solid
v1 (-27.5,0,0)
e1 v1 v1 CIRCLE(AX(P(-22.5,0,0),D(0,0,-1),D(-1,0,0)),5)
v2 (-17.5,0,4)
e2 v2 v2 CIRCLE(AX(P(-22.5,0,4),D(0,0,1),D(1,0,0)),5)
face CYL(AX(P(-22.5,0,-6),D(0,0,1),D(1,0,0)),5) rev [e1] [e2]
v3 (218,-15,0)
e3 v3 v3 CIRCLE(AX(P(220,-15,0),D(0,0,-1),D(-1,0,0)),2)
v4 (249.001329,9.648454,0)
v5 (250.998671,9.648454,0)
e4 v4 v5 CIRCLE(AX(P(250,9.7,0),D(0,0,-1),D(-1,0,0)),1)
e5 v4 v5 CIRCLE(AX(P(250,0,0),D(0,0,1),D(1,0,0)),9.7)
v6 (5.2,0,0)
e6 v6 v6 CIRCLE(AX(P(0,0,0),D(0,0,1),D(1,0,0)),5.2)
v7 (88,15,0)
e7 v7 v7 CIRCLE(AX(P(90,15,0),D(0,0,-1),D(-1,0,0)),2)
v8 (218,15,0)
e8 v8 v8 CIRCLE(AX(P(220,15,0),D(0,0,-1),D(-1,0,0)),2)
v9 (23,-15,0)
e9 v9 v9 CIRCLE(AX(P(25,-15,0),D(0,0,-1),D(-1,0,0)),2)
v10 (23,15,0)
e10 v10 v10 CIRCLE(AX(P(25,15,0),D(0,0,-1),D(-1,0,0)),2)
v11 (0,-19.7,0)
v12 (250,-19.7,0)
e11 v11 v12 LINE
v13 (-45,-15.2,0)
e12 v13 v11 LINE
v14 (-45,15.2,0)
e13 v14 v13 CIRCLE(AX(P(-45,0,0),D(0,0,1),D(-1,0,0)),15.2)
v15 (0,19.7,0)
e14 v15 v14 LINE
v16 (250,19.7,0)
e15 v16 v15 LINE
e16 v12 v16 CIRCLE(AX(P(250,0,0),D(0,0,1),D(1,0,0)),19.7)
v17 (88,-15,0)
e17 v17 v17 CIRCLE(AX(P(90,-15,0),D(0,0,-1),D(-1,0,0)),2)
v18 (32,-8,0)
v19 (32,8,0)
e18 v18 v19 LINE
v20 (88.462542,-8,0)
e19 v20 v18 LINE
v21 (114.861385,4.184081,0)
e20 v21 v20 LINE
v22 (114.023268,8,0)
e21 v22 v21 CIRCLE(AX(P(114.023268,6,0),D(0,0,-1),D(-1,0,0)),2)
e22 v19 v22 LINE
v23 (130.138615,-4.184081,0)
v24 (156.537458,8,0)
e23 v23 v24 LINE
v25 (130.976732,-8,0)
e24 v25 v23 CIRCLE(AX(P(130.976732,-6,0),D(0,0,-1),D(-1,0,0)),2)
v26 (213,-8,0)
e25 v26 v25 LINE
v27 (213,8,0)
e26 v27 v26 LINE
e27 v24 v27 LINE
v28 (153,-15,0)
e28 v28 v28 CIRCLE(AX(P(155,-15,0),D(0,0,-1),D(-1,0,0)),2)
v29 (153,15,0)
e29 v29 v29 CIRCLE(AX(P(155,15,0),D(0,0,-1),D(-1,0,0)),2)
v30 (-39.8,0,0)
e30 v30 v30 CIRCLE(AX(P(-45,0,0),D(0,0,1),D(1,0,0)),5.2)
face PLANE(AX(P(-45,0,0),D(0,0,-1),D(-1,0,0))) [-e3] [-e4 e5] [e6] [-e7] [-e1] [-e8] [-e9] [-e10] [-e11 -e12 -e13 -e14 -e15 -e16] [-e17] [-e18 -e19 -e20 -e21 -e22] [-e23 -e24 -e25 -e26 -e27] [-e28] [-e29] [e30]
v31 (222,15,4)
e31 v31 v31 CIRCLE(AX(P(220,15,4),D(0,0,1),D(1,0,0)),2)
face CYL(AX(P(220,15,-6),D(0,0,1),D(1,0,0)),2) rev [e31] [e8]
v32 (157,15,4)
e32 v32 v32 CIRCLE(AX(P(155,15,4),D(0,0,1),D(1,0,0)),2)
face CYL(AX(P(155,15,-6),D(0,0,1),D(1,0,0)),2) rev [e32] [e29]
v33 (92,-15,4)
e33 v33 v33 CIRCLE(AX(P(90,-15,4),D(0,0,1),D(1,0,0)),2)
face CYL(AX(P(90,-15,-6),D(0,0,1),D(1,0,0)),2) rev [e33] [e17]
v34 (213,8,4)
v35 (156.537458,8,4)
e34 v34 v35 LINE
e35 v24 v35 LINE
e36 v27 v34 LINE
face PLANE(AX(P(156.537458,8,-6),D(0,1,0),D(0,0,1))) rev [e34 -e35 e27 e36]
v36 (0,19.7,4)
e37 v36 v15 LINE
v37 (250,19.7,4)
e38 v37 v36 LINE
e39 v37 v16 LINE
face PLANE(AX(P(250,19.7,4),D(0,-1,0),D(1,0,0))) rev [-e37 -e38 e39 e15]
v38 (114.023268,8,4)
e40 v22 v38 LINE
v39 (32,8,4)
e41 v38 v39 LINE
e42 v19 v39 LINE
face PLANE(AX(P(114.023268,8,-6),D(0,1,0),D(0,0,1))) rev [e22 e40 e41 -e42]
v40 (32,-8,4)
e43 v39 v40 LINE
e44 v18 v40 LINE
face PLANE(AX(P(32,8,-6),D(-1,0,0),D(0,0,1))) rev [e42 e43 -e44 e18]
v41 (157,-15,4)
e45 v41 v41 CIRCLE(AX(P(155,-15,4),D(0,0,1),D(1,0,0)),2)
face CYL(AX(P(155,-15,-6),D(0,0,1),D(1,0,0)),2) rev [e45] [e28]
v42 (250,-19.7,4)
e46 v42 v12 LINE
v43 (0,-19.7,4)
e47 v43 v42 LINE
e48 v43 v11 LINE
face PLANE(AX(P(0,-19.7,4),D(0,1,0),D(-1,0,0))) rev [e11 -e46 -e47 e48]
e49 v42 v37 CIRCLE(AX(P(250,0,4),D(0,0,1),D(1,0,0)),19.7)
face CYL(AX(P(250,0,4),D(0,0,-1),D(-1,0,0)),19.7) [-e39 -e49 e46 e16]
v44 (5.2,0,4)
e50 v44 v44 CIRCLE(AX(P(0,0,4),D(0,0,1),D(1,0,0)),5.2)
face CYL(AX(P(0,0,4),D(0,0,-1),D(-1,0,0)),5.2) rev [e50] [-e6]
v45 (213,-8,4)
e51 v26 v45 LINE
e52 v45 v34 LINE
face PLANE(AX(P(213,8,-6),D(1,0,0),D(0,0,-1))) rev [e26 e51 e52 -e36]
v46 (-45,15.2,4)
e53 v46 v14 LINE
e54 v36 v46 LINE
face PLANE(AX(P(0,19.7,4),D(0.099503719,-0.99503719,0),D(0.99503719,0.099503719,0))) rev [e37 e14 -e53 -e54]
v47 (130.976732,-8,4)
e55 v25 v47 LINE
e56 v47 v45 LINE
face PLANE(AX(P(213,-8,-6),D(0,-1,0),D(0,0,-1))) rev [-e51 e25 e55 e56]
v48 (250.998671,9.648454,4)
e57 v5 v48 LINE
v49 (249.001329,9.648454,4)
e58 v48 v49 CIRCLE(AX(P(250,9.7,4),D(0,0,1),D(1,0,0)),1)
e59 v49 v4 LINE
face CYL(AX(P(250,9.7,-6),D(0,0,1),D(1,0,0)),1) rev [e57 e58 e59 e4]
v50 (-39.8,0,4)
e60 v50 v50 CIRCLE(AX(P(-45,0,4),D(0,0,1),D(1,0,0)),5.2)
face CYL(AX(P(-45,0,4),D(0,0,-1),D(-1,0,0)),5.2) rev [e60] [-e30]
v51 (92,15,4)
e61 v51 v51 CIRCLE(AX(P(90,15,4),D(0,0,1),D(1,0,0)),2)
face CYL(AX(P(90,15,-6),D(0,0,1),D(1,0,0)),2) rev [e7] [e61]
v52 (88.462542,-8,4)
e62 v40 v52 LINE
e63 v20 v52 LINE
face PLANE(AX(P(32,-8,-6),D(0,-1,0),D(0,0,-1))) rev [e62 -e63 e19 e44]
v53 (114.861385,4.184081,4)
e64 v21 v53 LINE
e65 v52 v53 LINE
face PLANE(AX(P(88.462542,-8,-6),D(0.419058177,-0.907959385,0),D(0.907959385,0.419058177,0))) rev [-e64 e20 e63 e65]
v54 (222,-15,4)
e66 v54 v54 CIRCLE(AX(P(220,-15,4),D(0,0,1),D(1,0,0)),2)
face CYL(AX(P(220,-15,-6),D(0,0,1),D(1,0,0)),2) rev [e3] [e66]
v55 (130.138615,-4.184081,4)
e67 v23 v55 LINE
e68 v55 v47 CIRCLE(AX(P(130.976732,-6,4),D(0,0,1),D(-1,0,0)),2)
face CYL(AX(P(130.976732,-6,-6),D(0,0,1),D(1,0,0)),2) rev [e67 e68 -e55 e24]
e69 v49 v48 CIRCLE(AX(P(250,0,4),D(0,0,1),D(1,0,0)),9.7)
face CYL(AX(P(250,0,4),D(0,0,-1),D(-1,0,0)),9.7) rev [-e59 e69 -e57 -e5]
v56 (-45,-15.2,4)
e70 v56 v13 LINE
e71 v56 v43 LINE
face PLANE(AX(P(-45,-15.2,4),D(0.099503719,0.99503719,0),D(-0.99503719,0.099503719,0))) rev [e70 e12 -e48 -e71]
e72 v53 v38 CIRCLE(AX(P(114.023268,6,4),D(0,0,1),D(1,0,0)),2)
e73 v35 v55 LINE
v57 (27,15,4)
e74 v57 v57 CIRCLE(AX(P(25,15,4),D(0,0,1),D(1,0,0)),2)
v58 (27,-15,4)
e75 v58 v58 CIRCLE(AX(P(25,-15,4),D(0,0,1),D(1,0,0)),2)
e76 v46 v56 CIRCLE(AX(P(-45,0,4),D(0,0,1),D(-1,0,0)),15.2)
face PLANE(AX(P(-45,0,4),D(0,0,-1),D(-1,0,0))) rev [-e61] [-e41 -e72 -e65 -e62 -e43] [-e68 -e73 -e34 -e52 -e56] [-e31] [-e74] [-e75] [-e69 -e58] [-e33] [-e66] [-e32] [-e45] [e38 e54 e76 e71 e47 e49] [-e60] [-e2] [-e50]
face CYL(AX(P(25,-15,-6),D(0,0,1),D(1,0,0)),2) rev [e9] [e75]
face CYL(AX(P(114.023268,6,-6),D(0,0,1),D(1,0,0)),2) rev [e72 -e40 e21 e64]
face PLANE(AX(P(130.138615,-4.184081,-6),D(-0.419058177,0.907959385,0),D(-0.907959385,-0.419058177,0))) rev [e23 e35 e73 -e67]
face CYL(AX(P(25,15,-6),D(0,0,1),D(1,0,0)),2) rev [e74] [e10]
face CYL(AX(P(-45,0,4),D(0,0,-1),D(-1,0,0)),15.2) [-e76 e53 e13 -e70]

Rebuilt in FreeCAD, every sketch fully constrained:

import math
import FreeCAD as App
import Part
import Sketcher

V = App.Vector

doc = App.newDocument("Part")
params = doc.addObject("Spreadsheet::Sheet", "Params")
for row, (alias, value) in enumerate([
    ("sketch1_diameter", "10.4 mm"),
    ("sketch1_diameter2", "19.4 mm"),
    ("sketch1_radius", "15.2 mm"),
    ("sketch1_radius2", "19.7 mm"),
    ("sketch1_width", "250 mm"),
    ("pad1_length", "4 mm"),
    ("sketch2_diameter", "4 mm"),
    ("pocket1_length", "10 mm"),
    ("sketch3_diameter", "10 mm"),
    ("sketch3_radius", "2 mm"),
    ("sketch3_height", "16 mm"),
    ("pocket2_length", "10 mm"),
    ("sketch4_diameter", "2 mm"),
    ("pocket3_length", "10 mm"),
], start=1):
    params.set(f"A{row}", alias)
    params.set(f"B{row}", "=" + value)
    params.setAlias(f"B{row}", alias)

body = doc.addObject("PartDesign::Body", "Body")

sketch1 = body.newObject("Sketcher::SketchObject", "Sketch")
sketch1.AttachmentSupport = (doc.getObject("XY_Plane"), [""])
sketch1.MapMode = "FlatFace"
sketch1.addGeometry(Part.LineSegment(V(250, 20, 0), V(0, 20, 0)), False)
sketch1.addGeometry(Part.LineSegment(V(0, 20, 0), V(-45, 15, 0)), False)
sketch1.addGeometry(Part.ArcOfCircle(Part.Circle(V(-45, 0, 0), V(0, 0, 1), 15), math.radians(90), math.radians(270)), False)
sketch1.addGeometry(Part.LineSegment(V(-45, -15, 0), V(0, -20, 0)), False)
sketch1.addGeometry(Part.LineSegment(V(0, -20, 0), V(250, -20, 0)), False)
sketch1.addGeometry(Part.ArcOfCircle(Part.Circle(V(250, 0, 0), V(0, 0, 1), 20), math.radians(-90), math.radians(90)), False)
sketch1.addGeometry(Part.Circle(V(-45, 0, 0), V(0, 0, 1), 5), False)
sketch1.addGeometry(Part.Circle(V(0, 0, 0), V(0, 0, 1), 5), False)
sketch1.addGeometry(Part.Circle(V(250, 0, 0), V(0, 0, 1), 10), False)
sketch1.addConstraint(Sketcher.Constraint("Coincident", 0, 2, 1, 1))
sketch1.addConstraint(Sketcher.Constraint("Coincident", 1, 2, 2, 1))
sketch1.addConstraint(Sketcher.Constraint("Coincident", 2, 2, 3, 1))
sketch1.addConstraint(Sketcher.Constraint("Coincident", 3, 2, 4, 1))
sketch1.addConstraint(Sketcher.Constraint("Tangent", 4, 2, 5, 1))
sketch1.addConstraint(Sketcher.Constraint("Tangent", 5, 2, 0, 1))
sketch1.addConstraint(Sketcher.Constraint("Horizontal", 0))
sketch1.addConstraint(Sketcher.Constraint("Horizontal", 4))
sketch1.addConstraint(Sketcher.Constraint("Coincident", 7, 3, -1, 1))
sketch1.addConstraint(Sketcher.Constraint("Coincident", 6, 3, 2, 3))
sketch1.addConstraint(Sketcher.Constraint("Coincident", 8, 3, 5, 3))
sketch1.addConstraint(Sketcher.Constraint("Equal", 6, 7))
sketch1.addConstraint(Sketcher.Constraint("Symmetric", 0, 2, 3, 2, -1, 1))
sketch1.addConstraint(Sketcher.Constraint("Symmetric", 1, 2, 2, 2, -1))
sketch1.addConstraint(Sketcher.Constraint("PointOnObject", 0, 2, -2))
sketch1.addConstraint(Sketcher.Constraint("Vertical", 6, 3, 1, 2))
sketch1.addConstraint(Sketcher.Constraint("Diameter", 6, 10.4))
sketch1.addConstraint(Sketcher.Constraint("Diameter", 8, 19.4))
sketch1.addConstraint(Sketcher.Constraint("Radius", 2, 15.2))
sketch1.addConstraint(Sketcher.Constraint("Radius", 5, 19.7))
sketch1.addConstraint(Sketcher.Constraint("DistanceX", 0, 2, 0, 1, 250.0))
sketch1.addConstraint(Sketcher.Constraint("DistanceX", 2, 3, -1, 1, 45.0))
sketch1.setExpression("Constraints[16]", "Params.sketch1_diameter")
sketch1.setExpression("Constraints[17]", "Params.sketch1_diameter2")
sketch1.setExpression("Constraints[18]", "Params.sketch1_radius")
sketch1.setExpression("Constraints[19]", "Params.sketch1_radius2")
sketch1.setExpression("Constraints[20]", "Params.sketch1_width")
pad1 = body.newObject("PartDesign::Pad", "Pad")
pad1.Profile = sketch1
pad1.setExpression("Length", "Params.pad1_length")

sketch2 = body.newObject("Sketcher::SketchObject", "Sketch001")
sketch2.AttachmentSupport = (doc.getObject("XY_Plane"), [""])
sketch2.MapMode = "FlatFace"
sketch2.AttachmentOffset = App.Placement(V(0, 0, 4), App.Rotation())
sketch2.addGeometry(Part.Circle(V(25, 15, 0), V(0, 0, 1), 2), False)
sketch2.addGeometry(Part.Circle(V(90, 15, 0), V(0, 0, 1), 2), False)
sketch2.addGeometry(Part.Circle(V(155, 15, 0), V(0, 0, 1), 2), False)
sketch2.addGeometry(Part.Circle(V(220, 15, 0), V(0, 0, 1), 2), False)
sketch2.addGeometry(Part.Circle(V(90, -15, 0), V(0, 0, 1), 2), False)
sketch2.addGeometry(Part.Circle(V(155, -15, 0), V(0, 0, 1), 2), False)
sketch2.addGeometry(Part.Circle(V(220, -15, 0), V(0, 0, 1), 2), False)
sketch2.addGeometry(Part.Circle(V(25, -15, 0), V(0, 0, 1), 2), False)
sketch2.addConstraint(Sketcher.Constraint("Equal", 0, 1))
sketch2.addConstraint(Sketcher.Constraint("Equal", 1, 2))
sketch2.addConstraint(Sketcher.Constraint("Equal", 2, 3))
sketch2.addConstraint(Sketcher.Constraint("Equal", 3, 4))
sketch2.addConstraint(Sketcher.Constraint("Equal", 4, 5))
sketch2.addConstraint(Sketcher.Constraint("Equal", 5, 6))
sketch2.addConstraint(Sketcher.Constraint("Equal", 6, 7))
sketch2.addConstraint(Sketcher.Constraint("Symmetric", 1, 3, 4, 3, -1))
sketch2.addConstraint(Sketcher.Constraint("Symmetric", 2, 3, 5, 3, -1))
sketch2.addConstraint(Sketcher.Constraint("Symmetric", 3, 3, 6, 3, -1))
sketch2.addConstraint(Sketcher.Constraint("Symmetric", 0, 3, 7, 3, -1))
sketch2.addConstraint(Sketcher.Constraint("Horizontal", 0, 3, 1, 3))
sketch2.addConstraint(Sketcher.Constraint("Horizontal", 1, 3, 2, 3))
sketch2.addConstraint(Sketcher.Constraint("Horizontal", 2, 3, 3, 3))
sketch2.addConstraint(Sketcher.Constraint("Diameter", 0, 4.0))
sketch2.addConstraint(Sketcher.Constraint("DistanceX", -1, 1, 0, 3, 25.0))
sketch2.addConstraint(Sketcher.Constraint("DistanceY", -1, 1, 0, 3, 15.0))
sketch2.addConstraint(Sketcher.Constraint("DistanceX", -1, 1, 1, 3, 90.0))
sketch2.addConstraint(Sketcher.Constraint("DistanceX", -1, 1, 2, 3, 155.0))
sketch2.addConstraint(Sketcher.Constraint("DistanceX", -1, 1, 3, 3, 220.0))
sketch2.setExpression("Constraints[14]", "Params.sketch2_diameter")
pocket1 = body.newObject("PartDesign::Pocket", "Pocket")
pocket1.Profile = sketch2
pocket1.setExpression("Length", "Params.pocket1_length")

sketch3 = body.newObject("Sketcher::SketchObject", "Sketch002")
sketch3.AttachmentSupport = (doc.getObject("XY_Plane"), [""])
sketch3.MapMode = "FlatFace"
sketch3.AttachmentOffset = App.Placement(V(0, 0, 4), App.Rotation())
sketch3.addGeometry(Part.Circle(V(-22.5, 0, 0), V(0, 0, 1), 5), False)
sketch3.addGeometry(Part.LineSegment(V(32, 8, 0), V(32, -8, 0)), False)
sketch3.addGeometry(Part.LineSegment(V(32, -8, 0), V(88.5, -8, 0)), False)
sketch3.addGeometry(Part.LineSegment(V(88.5, -8, 0), V(114.9, 4.2, 0)), False)
sketch3.addGeometry(Part.ArcOfCircle(Part.Circle(V(114, 6, 0), V(0, 0, 1), 2), math.radians(-65), math.radians(90)), False)
sketch3.addGeometry(Part.LineSegment(V(114, 8, 0), V(32, 8, 0)), False)
sketch3.addGeometry(Part.LineSegment(V(213, 8, 0), V(156.5, 8, 0)), False)
sketch3.addGeometry(Part.LineSegment(V(156.5, 8, 0), V(130.1, -4.2, 0)), False)
sketch3.addGeometry(Part.ArcOfCircle(Part.Circle(V(131, -6, 0), V(0, 0, 1), 2), math.radians(115), math.radians(270)), False)
sketch3.addGeometry(Part.LineSegment(V(131, -8, 0), V(213, -8, 0)), False)
sketch3.addGeometry(Part.LineSegment(V(213, -8, 0), V(213, 8, 0)), False)
sketch3.addConstraint(Sketcher.Constraint("Coincident", 1, 2, 2, 1))
sketch3.addConstraint(Sketcher.Constraint("Coincident", 2, 2, 3, 1))
sketch3.addConstraint(Sketcher.Constraint("Tangent", 3, 2, 4, 1))
sketch3.addConstraint(Sketcher.Constraint("Tangent", 4, 2, 5, 1))
sketch3.addConstraint(Sketcher.Constraint("Coincident", 5, 2, 1, 1))
sketch3.addConstraint(Sketcher.Constraint("Coincident", 6, 2, 7, 1))
sketch3.addConstraint(Sketcher.Constraint("Tangent", 7, 2, 8, 1))
sketch3.addConstraint(Sketcher.Constraint("Tangent", 8, 2, 9, 1))
sketch3.addConstraint(Sketcher.Constraint("Coincident", 9, 2, 10, 1))
sketch3.addConstraint(Sketcher.Constraint("Coincident", 10, 2, 6, 1))
sketch3.addConstraint(Sketcher.Constraint("Vertical", 1))
sketch3.addConstraint(Sketcher.Constraint("Horizontal", 2))
sketch3.addConstraint(Sketcher.Constraint("Horizontal", 5))
sketch3.addConstraint(Sketcher.Constraint("Horizontal", 6))
sketch3.addConstraint(Sketcher.Constraint("Horizontal", 9))
sketch3.addConstraint(Sketcher.Constraint("Vertical", 10))
sketch3.addConstraint(Sketcher.Constraint("Equal", 4, 8))
sketch3.addConstraint(Sketcher.Constraint("PointOnObject", 0, 3, -1))
sketch3.addConstraint(Sketcher.Constraint("Parallel", 3, 7))
sketch3.addConstraint(Sketcher.Constraint("Horizontal", 5, 2, 6, 2))
sketch3.addConstraint(Sketcher.Constraint("Horizontal", 2, 2, 8, 2))
sketch3.addConstraint(Sketcher.Constraint("Equal", 2, 6))
sketch3.addConstraint(Sketcher.Constraint("Diameter", 0, 10.0))
sketch3.addConstraint(Sketcher.Constraint("Radius", 4, 2.0))
sketch3.addConstraint(Sketcher.Constraint("DistanceY", 1, 2, 1, 1, 16.0))
sketch3.addConstraint(Sketcher.Constraint("DistanceY", -1, 1, 4, 3, 6.0))
sketch3.addConstraint(Sketcher.Constraint("DistanceX", -1, 1, 1, 2, 32.0))
sketch3.addConstraint(Sketcher.Constraint("DistanceX", -1, 1, 9, 2, 213.0))
sketch3.addConstraint(Sketcher.Constraint("DistanceX", 0, 3, -1, 1, 22.5))
sketch3.addConstraint(Sketcher.Constraint("DistanceX", 5, 2, 5, 1, 82.023268))
sketch3.addConstraint(Sketcher.Constraint("DistanceX", 2, 1, 2, 2, 56.462542))
sketch3.setExpression("Constraints[22]", "Params.sketch3_diameter")
sketch3.setExpression("Constraints[23]", "Params.sketch3_radius")
sketch3.setExpression("Constraints[24]", "Params.sketch3_height")
pocket2 = body.newObject("PartDesign::Pocket", "Pocket001")
pocket2.Profile = sketch3
pocket2.setExpression("Length", "Params.pocket2_length")

sketch4 = body.newObject("Sketcher::SketchObject", "Sketch003")
sketch4.AttachmentSupport = (doc.getObject("XY_Plane"), [""])
sketch4.MapMode = "FlatFace"
sketch4.AttachmentOffset = App.Placement(V(0, 0, 4), App.Rotation())
sketch4.addGeometry(Part.Circle(V(250, 9.7, 0), V(0, 0, 1), 1), False)
sketch4.addConstraint(Sketcher.Constraint("Diameter", 0, 2.0))
sketch4.addConstraint(Sketcher.Constraint("DistanceX", -1, 1, 0, 3, 250.0))
sketch4.addConstraint(Sketcher.Constraint("DistanceY", -1, 1, 0, 3, 9.7))
sketch4.setExpression("Constraints[0]", "Params.sketch4_diameter")
pocket3 = body.newObject("PartDesign::Pocket", "Pocket002")
pocket3.Profile = sketch4
pocket3.setExpression("Length", "Params.pocket3_length")

doc.recompute()
